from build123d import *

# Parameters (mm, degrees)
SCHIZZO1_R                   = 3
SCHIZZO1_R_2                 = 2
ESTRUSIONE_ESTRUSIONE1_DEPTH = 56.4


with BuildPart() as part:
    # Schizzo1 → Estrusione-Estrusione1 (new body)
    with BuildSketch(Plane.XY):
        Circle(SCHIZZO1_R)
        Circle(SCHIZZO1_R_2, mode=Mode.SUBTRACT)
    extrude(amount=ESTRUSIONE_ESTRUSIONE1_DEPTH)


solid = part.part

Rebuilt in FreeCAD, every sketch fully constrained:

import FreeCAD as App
import Part
import Sketcher

V = App.Vector

doc = App.newDocument("Part")
body = doc.addObject("PartDesign::Body", "Body")

sketch1 = body.newObject("Sketcher::SketchObject", "Sketch")
sketch1.AttachmentSupport = (doc.getObject("XY_Plane"), [""])
sketch1.MapMode = "FlatFace"
sketch1.addGeometry([
    Part.Circle(V(0, 0, 0), V(0, 0, 1), 3),
    Part.Circle(V(0, 0, 0), V(0, 0, 1), 2),
], False)
sketch1.addConstraint([
    Sketcher.Constraint("Coincident", 0, 3, -1, 1),
    Sketcher.Constraint("Coincident", 1, 3, -1, 1),
    Sketcher.Constraint("Diameter", 0, 6.0),
    Sketcher.Constraint("Diameter", 1, 4.0),
])
pad1 = body.newObject("PartDesign::Pad", "Pad")
pad1.Profile = sketch1
pad1.Length = 56.4

doc.recompute()
